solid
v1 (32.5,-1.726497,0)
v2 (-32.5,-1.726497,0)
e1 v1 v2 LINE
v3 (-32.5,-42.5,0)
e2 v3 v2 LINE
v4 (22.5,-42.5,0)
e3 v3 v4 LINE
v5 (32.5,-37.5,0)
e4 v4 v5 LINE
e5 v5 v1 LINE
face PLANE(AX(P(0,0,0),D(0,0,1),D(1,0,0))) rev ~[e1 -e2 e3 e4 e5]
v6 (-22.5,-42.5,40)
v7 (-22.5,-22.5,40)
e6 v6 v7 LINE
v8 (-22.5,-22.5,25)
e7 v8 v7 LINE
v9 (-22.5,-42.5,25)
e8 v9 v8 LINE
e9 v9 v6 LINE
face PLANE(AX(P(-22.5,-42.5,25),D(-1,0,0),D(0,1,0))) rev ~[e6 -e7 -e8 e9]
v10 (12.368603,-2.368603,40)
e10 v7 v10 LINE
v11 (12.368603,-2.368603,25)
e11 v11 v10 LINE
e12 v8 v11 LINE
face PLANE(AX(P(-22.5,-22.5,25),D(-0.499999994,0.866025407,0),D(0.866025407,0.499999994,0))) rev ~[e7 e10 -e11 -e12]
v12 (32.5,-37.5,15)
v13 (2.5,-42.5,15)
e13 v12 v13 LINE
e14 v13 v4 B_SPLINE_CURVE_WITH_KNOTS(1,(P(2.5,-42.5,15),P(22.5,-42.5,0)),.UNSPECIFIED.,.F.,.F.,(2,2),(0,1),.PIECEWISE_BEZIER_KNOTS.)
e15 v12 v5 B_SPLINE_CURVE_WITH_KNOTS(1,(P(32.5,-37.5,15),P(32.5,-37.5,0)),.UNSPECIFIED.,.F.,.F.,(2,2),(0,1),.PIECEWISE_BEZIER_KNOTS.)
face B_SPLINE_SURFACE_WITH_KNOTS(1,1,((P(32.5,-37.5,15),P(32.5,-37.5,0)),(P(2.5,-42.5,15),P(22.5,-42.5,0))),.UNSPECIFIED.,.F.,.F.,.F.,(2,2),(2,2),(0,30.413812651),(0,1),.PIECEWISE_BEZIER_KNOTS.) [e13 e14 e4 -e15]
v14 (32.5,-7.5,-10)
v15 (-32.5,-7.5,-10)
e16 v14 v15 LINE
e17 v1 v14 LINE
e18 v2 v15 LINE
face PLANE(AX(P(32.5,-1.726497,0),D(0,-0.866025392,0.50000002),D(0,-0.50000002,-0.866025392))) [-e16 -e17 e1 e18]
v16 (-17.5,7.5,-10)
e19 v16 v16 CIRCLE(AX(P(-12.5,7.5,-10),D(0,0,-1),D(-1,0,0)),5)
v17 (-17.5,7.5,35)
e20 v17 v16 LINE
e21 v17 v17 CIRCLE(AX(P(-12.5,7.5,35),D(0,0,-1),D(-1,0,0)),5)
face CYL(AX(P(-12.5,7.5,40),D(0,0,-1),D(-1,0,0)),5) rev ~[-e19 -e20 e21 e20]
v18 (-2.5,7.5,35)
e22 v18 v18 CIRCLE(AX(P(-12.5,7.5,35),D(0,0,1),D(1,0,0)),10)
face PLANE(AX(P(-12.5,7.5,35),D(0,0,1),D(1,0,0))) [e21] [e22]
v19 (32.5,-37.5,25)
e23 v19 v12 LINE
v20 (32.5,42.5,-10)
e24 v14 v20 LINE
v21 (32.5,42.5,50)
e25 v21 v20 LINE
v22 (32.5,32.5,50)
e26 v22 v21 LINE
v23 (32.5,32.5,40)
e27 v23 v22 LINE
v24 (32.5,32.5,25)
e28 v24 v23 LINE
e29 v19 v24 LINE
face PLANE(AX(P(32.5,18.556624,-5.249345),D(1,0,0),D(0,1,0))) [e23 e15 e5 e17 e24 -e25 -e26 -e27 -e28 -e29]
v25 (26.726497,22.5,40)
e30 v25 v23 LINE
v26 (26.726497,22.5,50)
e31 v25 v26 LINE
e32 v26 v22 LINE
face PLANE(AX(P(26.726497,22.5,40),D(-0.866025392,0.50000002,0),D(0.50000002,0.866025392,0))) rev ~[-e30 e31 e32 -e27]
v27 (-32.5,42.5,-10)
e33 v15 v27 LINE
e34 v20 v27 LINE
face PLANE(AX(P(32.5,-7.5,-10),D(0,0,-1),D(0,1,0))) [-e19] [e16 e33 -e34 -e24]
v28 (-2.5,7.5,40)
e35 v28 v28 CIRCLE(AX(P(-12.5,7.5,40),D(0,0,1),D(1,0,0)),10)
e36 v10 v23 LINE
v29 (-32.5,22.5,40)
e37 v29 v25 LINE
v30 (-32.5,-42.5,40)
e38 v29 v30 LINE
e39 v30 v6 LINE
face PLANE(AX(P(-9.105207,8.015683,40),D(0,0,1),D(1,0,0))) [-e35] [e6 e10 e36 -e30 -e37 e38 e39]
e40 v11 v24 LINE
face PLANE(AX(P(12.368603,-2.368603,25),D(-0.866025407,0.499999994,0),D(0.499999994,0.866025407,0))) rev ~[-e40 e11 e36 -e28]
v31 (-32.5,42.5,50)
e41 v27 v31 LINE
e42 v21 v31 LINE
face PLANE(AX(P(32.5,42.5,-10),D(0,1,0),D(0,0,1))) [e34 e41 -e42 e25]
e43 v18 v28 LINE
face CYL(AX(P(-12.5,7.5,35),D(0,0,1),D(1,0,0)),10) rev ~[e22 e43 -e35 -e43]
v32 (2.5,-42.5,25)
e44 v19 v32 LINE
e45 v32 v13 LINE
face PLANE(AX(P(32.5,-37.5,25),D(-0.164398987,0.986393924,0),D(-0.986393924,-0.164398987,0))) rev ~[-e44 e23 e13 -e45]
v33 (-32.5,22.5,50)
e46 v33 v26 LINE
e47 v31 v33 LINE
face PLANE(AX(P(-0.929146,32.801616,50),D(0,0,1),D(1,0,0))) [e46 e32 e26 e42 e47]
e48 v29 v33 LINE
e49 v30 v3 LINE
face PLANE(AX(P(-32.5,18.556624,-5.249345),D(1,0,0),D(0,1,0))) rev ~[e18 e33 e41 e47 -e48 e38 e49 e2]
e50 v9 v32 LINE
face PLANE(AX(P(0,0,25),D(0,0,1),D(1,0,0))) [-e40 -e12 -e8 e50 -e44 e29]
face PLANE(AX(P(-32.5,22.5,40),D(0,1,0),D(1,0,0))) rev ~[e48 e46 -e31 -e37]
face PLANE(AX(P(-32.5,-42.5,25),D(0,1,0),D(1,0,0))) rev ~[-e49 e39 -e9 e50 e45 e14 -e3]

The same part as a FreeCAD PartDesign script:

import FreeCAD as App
import Part
import Sketcher
from FreeCAD import Vector
Q = App.Units.Quantity

doc = App.newDocument("Part")
body = doc.addObject("PartDesign::Body", "Body")

sketch1 = doc.addObject("Sketcher::SketchObject", "Sketch")
body.addObject(sketch1)
sketch1.AttachmentSupport = (doc.XY_Plane, [""])
sketch1.MapMode = "FlatFace"
sketch1.addGeometry([
    Part.LineSegment(Vector(-32, 42, 0), Vector(-32, -42, 0)),
    Part.LineSegment(Vector(-32, -42, 0), Vector(32, -42, 0)),
    Part.LineSegment(Vector(32, -42, 0), Vector(32, 42, 0)),
    Part.LineSegment(Vector(32, 42, 0), Vector(-32, 42, 0)),
], False)
sketch1.addConstraint([
    Sketcher.Constraint("Coincident", 0, 2, 1, 1),
    Sketcher.Constraint("Coincident", 1, 2, 2, 1),
    Sketcher.Constraint("Coincident", 2, 2, 3, 1),
    Sketcher.Constraint("Coincident", 3, 2, 0, 1),
    Sketcher.Constraint("Vertical", 0),
    Sketcher.Constraint("Horizontal", 1),
    Sketcher.Constraint("Vertical", 2),
    Sketcher.Constraint("Horizontal", 3),
    Sketcher.Constraint("Symmetric", 0, 2, 2, 2, -1, 1),
    Sketcher.Constraint("DistanceX", 1, 1, 1, 2, 65.0),
    Sketcher.Constraint("DistanceY", 0, 2, 0, 1, 85.0),
])
pad1 = doc.addObject("PartDesign::Pad", "Pad")
body.addObject(pad1)
pad1.Profile = sketch1
pad1.Length = 25

sketch2 = doc.addObject("Sketcher::SketchObject", "Sketch001")
body.addObject(sketch2)
sketch2.AttachmentSupport = (doc.XY_Plane, [""])
sketch2.MapMode = "FlatFace"
sketch2.AttachmentOffset = App.Placement(Vector(0, 0, 25), App.Rotation())
sketch2.addGeometry([
    Part.LineSegment(Vector(-32, -42, 0), Vector(-22, -42, 0)),
    Part.LineSegment(Vector(-22, -42, 0), Vector(-22, -22, 0)),
    Part.LineSegment(Vector(-22, -22, 0), Vector(12, -2, 0)),
    Part.LineSegment(Vector(12, -2, 0), Vector(32, 32, 0)),
    Part.LineSegment(Vector(32, 32, 0), Vector(32, 42, 0)),
    Part.LineSegment(Vector(32, 42, 0), Vector(-32, 42, 0)),
    Part.LineSegment(Vector(-32, 42, 0), Vector(-32, -42, 0)),
], False)
sketch2.addConstraint([
    Sketcher.Constraint("Coincident", 0, 2, 1, 1),
    Sketcher.Constraint("Coincident", 1, 2, 2, 1),
    Sketcher.Constraint("Coincident", 2, 2, 3, 1),
    Sketcher.Constraint("Coincident", 3, 2, 4, 1),
    Sketcher.Constraint("Coincident", 4, 2, 5, 1),
    Sketcher.Constraint("Coincident", 5, 2, 6, 1),
    Sketcher.Constraint("Coincident", 6, 2, 0, 1),
    Sketcher.Constraint("Horizontal", 0),
    Sketcher.Constraint("Vertical", 1),
    Sketcher.Constraint("Vertical", 4),
    Sketcher.Constraint("Horizontal", 5),
    Sketcher.Constraint("Vertical", 6),
    Sketcher.Constraint("Symmetric", 4, 2, 6, 2, -1, 1),
    Sketcher.Constraint("Equal", 0, 4),
    Sketcher.Constraint("Equal", 2, 3),
    Sketcher.Constraint("DistanceX", 0, 1, 0, 2, 10.0),
    Sketcher.Constraint("DistanceX", 5, 2, 5, 1, 65.0),
    Sketcher.Constraint("DistanceY", 1, 1, 1, 2, 20.0),
    Sketcher.Constraint("DistanceY", 6, 2, 6, 1, 85.0),
    Sketcher.Constraint("Angle", 2, Q("30 deg")),
])
pad2 = doc.addObject("PartDesign::Pad", "Pad001")
body.addObject(pad2)
pad2.Profile = sketch2
pad2.Length = 15

sketch3 = doc.addObject("Sketcher::SketchObject", "Sketch002")
body.addObject(sketch3)
sketch3.AttachmentSupport = (doc.XY_Plane, [""])
sketch3.MapMode = "FlatFace"
sketch3.AttachmentOffset = App.Placement(Vector(0, 0, 40), App.Rotation())
sketch3.addGeometry([
    Part.LineSegment(Vector(-32, 42, 0), Vector(-32, 22, 0)),
    Part.LineSegment(Vector(-32, 22, 0), Vector(27, 22, 0)),
    Part.LineSegment(Vector(27, 22, 0), Vector(32, 32, 0)),
    Part.LineSegment(Vector(32, 32, 0), Vector(32, 42, 0)),
    Part.LineSegment(Vector(32, 42, 0), Vector(-32, 42, 0)),
], False)
sketch3.addConstraint([
    Sketcher.Constraint("Coincident", 0, 2, 1, 1),
    Sketcher.Constraint("Coincident", 1, 2, 2, 1),
    Sketcher.Constraint("Coincident", 2, 2, 3, 1),
    Sketcher.Constraint("Coincident", 3, 2, 4, 1),
    Sketcher.Constraint("Coincident", 4, 2, 0, 1),
    Sketcher.Constraint("Vertical", 0),
    Sketcher.Constraint("Horizontal", 1),
    Sketcher.Constraint("Vertical", 3),
    Sketcher.Constraint("Horizontal", 4),
    Sketcher.Constraint("DistanceX", 4, 2, 4, 1, 65.0),
    Sketcher.Constraint("DistanceY", 0, 2, 0, 1, 20.0),
    Sketcher.Constraint("DistanceY", 3, 1, 3, 2, 10.0),
    Sketcher.Constraint("Angle", 2, Q("59.999999 deg")),
    Sketcher.Constraint("DistanceX", 0, 2, -1, 1, 32.5),
    Sketcher.Constraint("DistanceY", -1, 1, 0, 2, 22.5),
])
pad3 = doc.addObject("PartDesign::Pad", "Pad002")
body.addObject(pad3)
pad3.Profile = sketch3
pad3.Length = 10

sketch4 = doc.addObject("Sketcher::SketchObject", "Sketch003")
body.addObject(sketch4)
sketch4.AttachmentSupport = (doc.XY_Plane, [""])
sketch4.MapMode = "FlatFace"
sketch4.AttachmentOffset = App.Placement(Vector(0, 0, 25), App.Rotation())
sketch4.addGeometry([
    Part.LineSegment(Vector(32, -38, 0), Vector(2, -42, 0)),
    Part.LineSegment(Vector(2, -42, 0), Vector(32, -42, 0)),
    Part.LineSegment(Vector(32, -42, 0), Vector(32, -38, 0)),
], False)
sketch4.addConstraint([
    Sketcher.Constraint("Coincident", 0, 2, 1, 1),
    Sketcher.Constraint("Coincident", 1, 2, 2, 1),
    Sketcher.Constraint("Coincident", 2, 2, 0, 1),
    Sketcher.Constraint("Horizontal", 1),
    Sketcher.Constraint("Vertical", 2),
    Sketcher.Constraint("DistanceX", 1, 1, 1, 2, 30.0),
    Sketcher.Constraint("DistanceY", 2, 1, 2, 2, 5.0),
    Sketcher.Constraint("DistanceX", -1, 1, 0, 2, 2.5),
    Sketcher.Constraint("DistanceY", 0, 2, -1, 1, 42.5),
])
pocket1 = doc.addObject("PartDesign::Pocket", "Pocket")
body.addObject(pocket1)
pocket1.Profile = sketch4
pocket1.Length = 10

sketch5 = doc.addObject("Sketcher::SketchObject", "Sketch004")
body.addObject(sketch5)
sketch5.AttachmentSupport = (doc.XY_Plane, [""])
sketch5.MapMode = "FlatFace"
sketch5.AttachmentOffset = App.Placement(Vector(0, 0, 15), App.Rotation())
sketch5.addGeometry([
    Part.LineSegment(Vector(32, -38, 0), Vector(2, -42, 0)),
    Part.LineSegment(Vector(2, -42, 0), Vector(32, -42, 0)),
    Part.LineSegment(Vector(32, -42, 0), Vector(32, -38, 0)),
], False)
sketch5.addConstraint([
    Sketcher.Constraint("Coincident", 0, 2, 1, 1),
    Sketcher.Constraint("Coincident", 1, 2, 2, 1),
    Sketcher.Constraint("Coincident", 2, 2, 0, 1),
    Sketcher.Constraint("Horizontal", 1),
    Sketcher.Constraint("Vertical", 2),
    Sketcher.Constraint("DistanceX", 1, 1, 1, 2, 30.0),
    Sketcher.Constraint("DistanceY", 2, 1, 2, 2, 5.0),
    Sketcher.Constraint("DistanceX", -1, 1, 0, 2, 2.5),
    Sketcher.Constraint("DistanceY", 0, 2, -1, 1, 42.5),
])

sketch6 = doc.addObject("Sketcher::SketchObject", "Sketch005")
body.addObject(sketch6)
sketch6.AttachmentSupport = (doc.XY_Plane, [""])
sketch6.MapMode = "FlatFace"
sketch6.addGeometry([
    Part.LineSegment(Vector(32, -42, 0), Vector(22, -42, 0)),
    Part.LineSegment(Vector(22, -42, 0), Vector(32, -38, 0)),
    Part.LineSegment(Vector(32, -38, 0), Vector(32, -42, 0)),
], False)
sketch6.addConstraint([
    Sketcher.Constraint("Coincident", 0, 2, 1, 1),
    Sketcher.Constraint("Coincident", 1, 2, 2, 1),
    Sketcher.Constraint("Coincident", 2, 2, 0, 1),
    Sketcher.Constraint("Horizontal", 0),
    Sketcher.Constraint("Vertical", 2),
    Sketcher.Constraint("DistanceX", 0, 2, 0, 1, 10.0),
    Sketcher.Constraint("DistanceY", 2, 2, 2, 1, 5.0),
    Sketcher.Constraint("DistanceX", -1, 1, 0, 2, 22.5),
    Sketcher.Constraint("DistanceY", 0, 2, -1, 1, 42.5),
])

subtractiveloft = doc.addObject("PartDesign::SubtractiveLoft", "SubtractiveLoft")
body.addObject(subtractiveloft)
subtractiveloft.Profile = sketch5
subtractiveloft.Sections = [sketch6]

sketch7 = doc.addObject("Sketcher::SketchObject", "Sketch006")
body.addObject(sketch7)
sketch7.AttachmentSupport = (doc.YZ_Plane, [""])
sketch7.MapMode = "FlatFace"
sketch7.AttachmentOffset = App.Placement(Vector(0, 0, 32.5), App.Rotation())
sketch7.addGeometry([
    Part.LineSegment(Vector(42, -10, 0), Vector(42, 0, 0)),
    Part.LineSegment(Vector(42, 0, 0), Vector(-2, 0, 0)),
    Part.LineSegment(Vector(-2, 0, 0), Vector(-8, -10, 0)),
    Part.LineSegment(Vector(-8, -10, 0), Vector(42, -10, 0)),
], False)
sketch7.addConstraint([
    Sketcher.Constraint("Coincident", 0, 2, 1, 1),
    Sketcher.Constraint("Coincident", 1, 2, 2, 1),
    Sketcher.Constraint("Coincident", 2, 2, 3, 1),
    Sketcher.Constraint("Coincident", 3, 2, 0, 1),
    Sketcher.Constraint("Vertical", 0),
    Sketcher.Constraint("Horizontal", 1),
    Sketcher.Constraint("Horizontal", 3),
    Sketcher.Constraint("PointOnObject", 0, 2, -1),
    Sketcher.Constraint("DistanceX", 3, 1, 3, 2, 50.0),
    Sketcher.Constraint("DistanceY", 0, 1, 0, 2, 10.0),
    Sketcher.Constraint("Angle", 2, Q("-120.000001 deg")),
    Sketcher.Constraint("DistanceX", -1, 1, 0, 2, 42.5),
])
pad4 = doc.addObject("PartDesign::Pad", "Pad003")
body.addObject(pad4)
pad4.Profile = sketch7
pad4.Length = 65
pad4.Reversed = True

sketch8 = doc.addObject("Sketcher::SketchObject", "Sketch007")
body.addObject(sketch8)
sketch8.AttachmentSupport = (doc.XY_Plane, [""])
sketch8.MapMode = "FlatFace"
sketch8.AttachmentOffset = App.Placement(Vector(0, 0, 40), App.Rotation())
sketch8.addGeometry(Part.Circle(Vector(-12, 8, 0), Vector(0, 0, 1), 5), False)
sketch8.addConstraint([
    Sketcher.Constraint("Diameter", 0, 10.0),
    Sketcher.Constraint("DistanceX", 0, 3, -1, 1, 12.5),
    Sketcher.Constraint("DistanceY", -1, 1, 0, 3, 7.5),
])
doc.recompute()
hole = doc.addObject("PartDesign::Hole", "Hole")
body.addObject(hole)
hole.Profile = sketch8
hole.ThreadType = "None"
hole.Diameter = 10
hole.DepthType = "ThroughAll"
hole.HoleCutType = "Counterbore"
hole.HoleCutDiameter = 20
hole.HoleCutDepth = 5

doc.recompute()
